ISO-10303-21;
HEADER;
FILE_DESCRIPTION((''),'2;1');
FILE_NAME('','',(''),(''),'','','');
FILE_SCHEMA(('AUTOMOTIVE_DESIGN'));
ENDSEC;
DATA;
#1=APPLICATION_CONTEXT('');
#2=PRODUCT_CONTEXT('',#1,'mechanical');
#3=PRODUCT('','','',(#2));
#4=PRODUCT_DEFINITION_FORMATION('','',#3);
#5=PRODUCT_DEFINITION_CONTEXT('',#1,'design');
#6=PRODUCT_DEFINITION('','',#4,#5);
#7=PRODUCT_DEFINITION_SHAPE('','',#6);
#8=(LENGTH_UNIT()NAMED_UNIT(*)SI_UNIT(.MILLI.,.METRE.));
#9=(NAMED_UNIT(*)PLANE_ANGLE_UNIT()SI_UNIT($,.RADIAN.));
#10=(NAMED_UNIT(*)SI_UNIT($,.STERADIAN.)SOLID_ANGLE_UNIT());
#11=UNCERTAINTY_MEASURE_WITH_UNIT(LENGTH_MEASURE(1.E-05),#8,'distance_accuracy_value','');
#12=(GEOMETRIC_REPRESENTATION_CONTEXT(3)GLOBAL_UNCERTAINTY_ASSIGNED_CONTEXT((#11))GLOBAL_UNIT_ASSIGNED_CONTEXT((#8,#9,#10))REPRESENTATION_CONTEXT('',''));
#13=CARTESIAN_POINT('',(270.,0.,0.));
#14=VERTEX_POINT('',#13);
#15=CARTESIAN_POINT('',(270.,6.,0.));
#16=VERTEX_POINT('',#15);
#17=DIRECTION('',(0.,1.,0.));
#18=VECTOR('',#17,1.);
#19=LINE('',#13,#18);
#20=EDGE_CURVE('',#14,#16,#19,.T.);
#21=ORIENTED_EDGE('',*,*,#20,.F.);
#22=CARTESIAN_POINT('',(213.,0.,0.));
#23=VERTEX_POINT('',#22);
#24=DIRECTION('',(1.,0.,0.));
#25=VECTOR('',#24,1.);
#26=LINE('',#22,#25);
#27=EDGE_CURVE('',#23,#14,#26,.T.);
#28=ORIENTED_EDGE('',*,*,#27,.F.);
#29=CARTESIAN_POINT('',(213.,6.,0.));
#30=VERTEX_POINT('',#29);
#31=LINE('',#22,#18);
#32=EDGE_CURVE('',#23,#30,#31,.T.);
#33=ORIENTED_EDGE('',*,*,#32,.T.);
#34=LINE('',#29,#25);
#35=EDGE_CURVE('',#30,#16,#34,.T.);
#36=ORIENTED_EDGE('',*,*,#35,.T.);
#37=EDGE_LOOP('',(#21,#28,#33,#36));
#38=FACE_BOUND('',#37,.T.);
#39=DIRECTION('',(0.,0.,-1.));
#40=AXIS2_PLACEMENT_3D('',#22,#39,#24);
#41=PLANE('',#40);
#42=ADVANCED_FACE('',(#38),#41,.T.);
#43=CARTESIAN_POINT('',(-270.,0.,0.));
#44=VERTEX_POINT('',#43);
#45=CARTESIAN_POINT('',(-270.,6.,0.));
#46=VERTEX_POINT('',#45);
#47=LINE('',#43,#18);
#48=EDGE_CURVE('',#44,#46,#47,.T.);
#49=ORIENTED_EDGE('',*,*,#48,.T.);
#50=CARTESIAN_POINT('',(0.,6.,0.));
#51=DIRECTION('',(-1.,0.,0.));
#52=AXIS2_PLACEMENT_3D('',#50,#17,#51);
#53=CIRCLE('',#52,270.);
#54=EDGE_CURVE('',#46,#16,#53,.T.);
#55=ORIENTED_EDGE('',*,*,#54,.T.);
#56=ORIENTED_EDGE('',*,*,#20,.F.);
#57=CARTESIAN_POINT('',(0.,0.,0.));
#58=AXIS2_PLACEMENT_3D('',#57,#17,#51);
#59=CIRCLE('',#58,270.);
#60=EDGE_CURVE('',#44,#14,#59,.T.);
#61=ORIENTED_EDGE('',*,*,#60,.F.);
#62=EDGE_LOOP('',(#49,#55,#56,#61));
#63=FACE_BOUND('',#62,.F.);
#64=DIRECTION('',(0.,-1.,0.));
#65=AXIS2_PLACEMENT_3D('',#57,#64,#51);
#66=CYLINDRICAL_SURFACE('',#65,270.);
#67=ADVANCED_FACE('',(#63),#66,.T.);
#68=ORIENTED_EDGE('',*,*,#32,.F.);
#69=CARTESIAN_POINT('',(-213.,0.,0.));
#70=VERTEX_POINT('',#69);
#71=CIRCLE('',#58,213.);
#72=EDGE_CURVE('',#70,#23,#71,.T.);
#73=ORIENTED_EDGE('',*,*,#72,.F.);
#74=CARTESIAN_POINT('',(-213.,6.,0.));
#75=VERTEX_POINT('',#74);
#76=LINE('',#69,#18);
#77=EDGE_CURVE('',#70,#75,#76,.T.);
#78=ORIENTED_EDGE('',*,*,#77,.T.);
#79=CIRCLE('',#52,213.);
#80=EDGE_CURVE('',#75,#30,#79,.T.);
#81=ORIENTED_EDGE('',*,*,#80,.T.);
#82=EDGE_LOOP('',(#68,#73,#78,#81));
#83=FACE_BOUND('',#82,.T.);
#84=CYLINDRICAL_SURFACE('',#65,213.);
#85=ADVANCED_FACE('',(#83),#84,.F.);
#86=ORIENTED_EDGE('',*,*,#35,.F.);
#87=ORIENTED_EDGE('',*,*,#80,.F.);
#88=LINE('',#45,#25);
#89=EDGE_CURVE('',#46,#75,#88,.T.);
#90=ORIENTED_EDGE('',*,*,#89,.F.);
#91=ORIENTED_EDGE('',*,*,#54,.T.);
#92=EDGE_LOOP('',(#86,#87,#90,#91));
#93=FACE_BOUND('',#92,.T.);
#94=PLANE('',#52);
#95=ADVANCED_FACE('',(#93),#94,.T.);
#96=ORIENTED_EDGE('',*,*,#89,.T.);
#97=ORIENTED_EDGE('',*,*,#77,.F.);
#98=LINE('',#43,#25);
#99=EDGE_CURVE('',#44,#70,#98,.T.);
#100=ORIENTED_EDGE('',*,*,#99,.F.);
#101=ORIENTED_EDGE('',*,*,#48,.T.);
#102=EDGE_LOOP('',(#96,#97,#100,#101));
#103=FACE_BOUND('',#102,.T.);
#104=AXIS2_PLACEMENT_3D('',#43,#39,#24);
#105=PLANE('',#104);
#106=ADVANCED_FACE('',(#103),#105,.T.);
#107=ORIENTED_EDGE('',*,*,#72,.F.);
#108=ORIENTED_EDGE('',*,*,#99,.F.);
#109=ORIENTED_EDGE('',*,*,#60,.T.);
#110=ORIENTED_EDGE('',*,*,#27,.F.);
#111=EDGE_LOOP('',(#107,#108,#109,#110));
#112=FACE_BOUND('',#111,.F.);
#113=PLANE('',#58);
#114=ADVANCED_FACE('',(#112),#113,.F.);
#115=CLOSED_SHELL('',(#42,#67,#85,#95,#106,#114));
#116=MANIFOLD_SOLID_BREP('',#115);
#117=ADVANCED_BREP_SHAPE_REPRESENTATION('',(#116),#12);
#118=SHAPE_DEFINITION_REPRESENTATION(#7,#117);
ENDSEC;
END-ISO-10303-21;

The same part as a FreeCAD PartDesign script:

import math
import FreeCAD as App
import Part
import Sketcher
Q = App.Units.Quantity

doc = App.newDocument("Part")
body = doc.addObject("PartDesign::Body", "Body")

sketch1 = body.newObject("Sketcher::SketchObject", "Sketch")
sketch1.AttachmentSupport = (doc.getObject("XZ_Plane"), [""])
sketch1.MapMode = "FlatFace"
sketch1.addGeometry(Part.ArcOfCircle(Part.Circle(App.Vector(0, 0, 0), App.Vector(0, 0, 1), 213), math.radians(0), math.radians(180)), False)
sketch1.addGeometry(Part.LineSegment(App.Vector(-213, 0, 0), App.Vector(-270, 0, 0)), False)
sketch1.addGeometry(Part.ArcOfCircle(Part.Circle(App.Vector(0, 0, 0), App.Vector(0, 0, 1), 270), math.radians(0), math.radians(180)), False)
sketch1.addGeometry(Part.LineSegment(App.Vector(270, 0, 0), App.Vector(213, 0, 0)), False)
sketch1.addConstraint(Sketcher.Constraint("Coincident", 0, 2, 1, 1))
sketch1.addConstraint(Sketcher.Constraint("Coincident", 1, 2, 2, 2))
sketch1.addConstraint(Sketcher.Constraint("Coincident", 2, 1, 3, 1))
sketch1.addConstraint(Sketcher.Constraint("Coincident", 3, 2, 0, 1))
sketch1.addConstraint(Sketcher.Constraint("Horizontal", 1))
sketch1.addConstraint(Sketcher.Constraint("Horizontal", 3))
sketch1.addConstraint(Sketcher.Constraint("Coincident", 0, 3, -1, 1))
sketch1.addConstraint(Sketcher.Constraint("Coincident", 2, 3, -1, 1))
sketch1.addConstraint(Sketcher.Constraint("PointOnObject", 0, 2, -1))
sketch1.addConstraint(Sketcher.Constraint("PointOnObject", 2, 1, -1))
sketch1.addConstraint(Sketcher.Constraint("Radius", 0, Q("213 mm")))
sketch1.addConstraint(Sketcher.Constraint("Radius", 2, Q("270 mm")))
pad1 = body.newObject("PartDesign::Pad", "Pad")
pad1.Profile = sketch1
pad1.Length = 6
pad1.Reversed = True

doc.recompute()
